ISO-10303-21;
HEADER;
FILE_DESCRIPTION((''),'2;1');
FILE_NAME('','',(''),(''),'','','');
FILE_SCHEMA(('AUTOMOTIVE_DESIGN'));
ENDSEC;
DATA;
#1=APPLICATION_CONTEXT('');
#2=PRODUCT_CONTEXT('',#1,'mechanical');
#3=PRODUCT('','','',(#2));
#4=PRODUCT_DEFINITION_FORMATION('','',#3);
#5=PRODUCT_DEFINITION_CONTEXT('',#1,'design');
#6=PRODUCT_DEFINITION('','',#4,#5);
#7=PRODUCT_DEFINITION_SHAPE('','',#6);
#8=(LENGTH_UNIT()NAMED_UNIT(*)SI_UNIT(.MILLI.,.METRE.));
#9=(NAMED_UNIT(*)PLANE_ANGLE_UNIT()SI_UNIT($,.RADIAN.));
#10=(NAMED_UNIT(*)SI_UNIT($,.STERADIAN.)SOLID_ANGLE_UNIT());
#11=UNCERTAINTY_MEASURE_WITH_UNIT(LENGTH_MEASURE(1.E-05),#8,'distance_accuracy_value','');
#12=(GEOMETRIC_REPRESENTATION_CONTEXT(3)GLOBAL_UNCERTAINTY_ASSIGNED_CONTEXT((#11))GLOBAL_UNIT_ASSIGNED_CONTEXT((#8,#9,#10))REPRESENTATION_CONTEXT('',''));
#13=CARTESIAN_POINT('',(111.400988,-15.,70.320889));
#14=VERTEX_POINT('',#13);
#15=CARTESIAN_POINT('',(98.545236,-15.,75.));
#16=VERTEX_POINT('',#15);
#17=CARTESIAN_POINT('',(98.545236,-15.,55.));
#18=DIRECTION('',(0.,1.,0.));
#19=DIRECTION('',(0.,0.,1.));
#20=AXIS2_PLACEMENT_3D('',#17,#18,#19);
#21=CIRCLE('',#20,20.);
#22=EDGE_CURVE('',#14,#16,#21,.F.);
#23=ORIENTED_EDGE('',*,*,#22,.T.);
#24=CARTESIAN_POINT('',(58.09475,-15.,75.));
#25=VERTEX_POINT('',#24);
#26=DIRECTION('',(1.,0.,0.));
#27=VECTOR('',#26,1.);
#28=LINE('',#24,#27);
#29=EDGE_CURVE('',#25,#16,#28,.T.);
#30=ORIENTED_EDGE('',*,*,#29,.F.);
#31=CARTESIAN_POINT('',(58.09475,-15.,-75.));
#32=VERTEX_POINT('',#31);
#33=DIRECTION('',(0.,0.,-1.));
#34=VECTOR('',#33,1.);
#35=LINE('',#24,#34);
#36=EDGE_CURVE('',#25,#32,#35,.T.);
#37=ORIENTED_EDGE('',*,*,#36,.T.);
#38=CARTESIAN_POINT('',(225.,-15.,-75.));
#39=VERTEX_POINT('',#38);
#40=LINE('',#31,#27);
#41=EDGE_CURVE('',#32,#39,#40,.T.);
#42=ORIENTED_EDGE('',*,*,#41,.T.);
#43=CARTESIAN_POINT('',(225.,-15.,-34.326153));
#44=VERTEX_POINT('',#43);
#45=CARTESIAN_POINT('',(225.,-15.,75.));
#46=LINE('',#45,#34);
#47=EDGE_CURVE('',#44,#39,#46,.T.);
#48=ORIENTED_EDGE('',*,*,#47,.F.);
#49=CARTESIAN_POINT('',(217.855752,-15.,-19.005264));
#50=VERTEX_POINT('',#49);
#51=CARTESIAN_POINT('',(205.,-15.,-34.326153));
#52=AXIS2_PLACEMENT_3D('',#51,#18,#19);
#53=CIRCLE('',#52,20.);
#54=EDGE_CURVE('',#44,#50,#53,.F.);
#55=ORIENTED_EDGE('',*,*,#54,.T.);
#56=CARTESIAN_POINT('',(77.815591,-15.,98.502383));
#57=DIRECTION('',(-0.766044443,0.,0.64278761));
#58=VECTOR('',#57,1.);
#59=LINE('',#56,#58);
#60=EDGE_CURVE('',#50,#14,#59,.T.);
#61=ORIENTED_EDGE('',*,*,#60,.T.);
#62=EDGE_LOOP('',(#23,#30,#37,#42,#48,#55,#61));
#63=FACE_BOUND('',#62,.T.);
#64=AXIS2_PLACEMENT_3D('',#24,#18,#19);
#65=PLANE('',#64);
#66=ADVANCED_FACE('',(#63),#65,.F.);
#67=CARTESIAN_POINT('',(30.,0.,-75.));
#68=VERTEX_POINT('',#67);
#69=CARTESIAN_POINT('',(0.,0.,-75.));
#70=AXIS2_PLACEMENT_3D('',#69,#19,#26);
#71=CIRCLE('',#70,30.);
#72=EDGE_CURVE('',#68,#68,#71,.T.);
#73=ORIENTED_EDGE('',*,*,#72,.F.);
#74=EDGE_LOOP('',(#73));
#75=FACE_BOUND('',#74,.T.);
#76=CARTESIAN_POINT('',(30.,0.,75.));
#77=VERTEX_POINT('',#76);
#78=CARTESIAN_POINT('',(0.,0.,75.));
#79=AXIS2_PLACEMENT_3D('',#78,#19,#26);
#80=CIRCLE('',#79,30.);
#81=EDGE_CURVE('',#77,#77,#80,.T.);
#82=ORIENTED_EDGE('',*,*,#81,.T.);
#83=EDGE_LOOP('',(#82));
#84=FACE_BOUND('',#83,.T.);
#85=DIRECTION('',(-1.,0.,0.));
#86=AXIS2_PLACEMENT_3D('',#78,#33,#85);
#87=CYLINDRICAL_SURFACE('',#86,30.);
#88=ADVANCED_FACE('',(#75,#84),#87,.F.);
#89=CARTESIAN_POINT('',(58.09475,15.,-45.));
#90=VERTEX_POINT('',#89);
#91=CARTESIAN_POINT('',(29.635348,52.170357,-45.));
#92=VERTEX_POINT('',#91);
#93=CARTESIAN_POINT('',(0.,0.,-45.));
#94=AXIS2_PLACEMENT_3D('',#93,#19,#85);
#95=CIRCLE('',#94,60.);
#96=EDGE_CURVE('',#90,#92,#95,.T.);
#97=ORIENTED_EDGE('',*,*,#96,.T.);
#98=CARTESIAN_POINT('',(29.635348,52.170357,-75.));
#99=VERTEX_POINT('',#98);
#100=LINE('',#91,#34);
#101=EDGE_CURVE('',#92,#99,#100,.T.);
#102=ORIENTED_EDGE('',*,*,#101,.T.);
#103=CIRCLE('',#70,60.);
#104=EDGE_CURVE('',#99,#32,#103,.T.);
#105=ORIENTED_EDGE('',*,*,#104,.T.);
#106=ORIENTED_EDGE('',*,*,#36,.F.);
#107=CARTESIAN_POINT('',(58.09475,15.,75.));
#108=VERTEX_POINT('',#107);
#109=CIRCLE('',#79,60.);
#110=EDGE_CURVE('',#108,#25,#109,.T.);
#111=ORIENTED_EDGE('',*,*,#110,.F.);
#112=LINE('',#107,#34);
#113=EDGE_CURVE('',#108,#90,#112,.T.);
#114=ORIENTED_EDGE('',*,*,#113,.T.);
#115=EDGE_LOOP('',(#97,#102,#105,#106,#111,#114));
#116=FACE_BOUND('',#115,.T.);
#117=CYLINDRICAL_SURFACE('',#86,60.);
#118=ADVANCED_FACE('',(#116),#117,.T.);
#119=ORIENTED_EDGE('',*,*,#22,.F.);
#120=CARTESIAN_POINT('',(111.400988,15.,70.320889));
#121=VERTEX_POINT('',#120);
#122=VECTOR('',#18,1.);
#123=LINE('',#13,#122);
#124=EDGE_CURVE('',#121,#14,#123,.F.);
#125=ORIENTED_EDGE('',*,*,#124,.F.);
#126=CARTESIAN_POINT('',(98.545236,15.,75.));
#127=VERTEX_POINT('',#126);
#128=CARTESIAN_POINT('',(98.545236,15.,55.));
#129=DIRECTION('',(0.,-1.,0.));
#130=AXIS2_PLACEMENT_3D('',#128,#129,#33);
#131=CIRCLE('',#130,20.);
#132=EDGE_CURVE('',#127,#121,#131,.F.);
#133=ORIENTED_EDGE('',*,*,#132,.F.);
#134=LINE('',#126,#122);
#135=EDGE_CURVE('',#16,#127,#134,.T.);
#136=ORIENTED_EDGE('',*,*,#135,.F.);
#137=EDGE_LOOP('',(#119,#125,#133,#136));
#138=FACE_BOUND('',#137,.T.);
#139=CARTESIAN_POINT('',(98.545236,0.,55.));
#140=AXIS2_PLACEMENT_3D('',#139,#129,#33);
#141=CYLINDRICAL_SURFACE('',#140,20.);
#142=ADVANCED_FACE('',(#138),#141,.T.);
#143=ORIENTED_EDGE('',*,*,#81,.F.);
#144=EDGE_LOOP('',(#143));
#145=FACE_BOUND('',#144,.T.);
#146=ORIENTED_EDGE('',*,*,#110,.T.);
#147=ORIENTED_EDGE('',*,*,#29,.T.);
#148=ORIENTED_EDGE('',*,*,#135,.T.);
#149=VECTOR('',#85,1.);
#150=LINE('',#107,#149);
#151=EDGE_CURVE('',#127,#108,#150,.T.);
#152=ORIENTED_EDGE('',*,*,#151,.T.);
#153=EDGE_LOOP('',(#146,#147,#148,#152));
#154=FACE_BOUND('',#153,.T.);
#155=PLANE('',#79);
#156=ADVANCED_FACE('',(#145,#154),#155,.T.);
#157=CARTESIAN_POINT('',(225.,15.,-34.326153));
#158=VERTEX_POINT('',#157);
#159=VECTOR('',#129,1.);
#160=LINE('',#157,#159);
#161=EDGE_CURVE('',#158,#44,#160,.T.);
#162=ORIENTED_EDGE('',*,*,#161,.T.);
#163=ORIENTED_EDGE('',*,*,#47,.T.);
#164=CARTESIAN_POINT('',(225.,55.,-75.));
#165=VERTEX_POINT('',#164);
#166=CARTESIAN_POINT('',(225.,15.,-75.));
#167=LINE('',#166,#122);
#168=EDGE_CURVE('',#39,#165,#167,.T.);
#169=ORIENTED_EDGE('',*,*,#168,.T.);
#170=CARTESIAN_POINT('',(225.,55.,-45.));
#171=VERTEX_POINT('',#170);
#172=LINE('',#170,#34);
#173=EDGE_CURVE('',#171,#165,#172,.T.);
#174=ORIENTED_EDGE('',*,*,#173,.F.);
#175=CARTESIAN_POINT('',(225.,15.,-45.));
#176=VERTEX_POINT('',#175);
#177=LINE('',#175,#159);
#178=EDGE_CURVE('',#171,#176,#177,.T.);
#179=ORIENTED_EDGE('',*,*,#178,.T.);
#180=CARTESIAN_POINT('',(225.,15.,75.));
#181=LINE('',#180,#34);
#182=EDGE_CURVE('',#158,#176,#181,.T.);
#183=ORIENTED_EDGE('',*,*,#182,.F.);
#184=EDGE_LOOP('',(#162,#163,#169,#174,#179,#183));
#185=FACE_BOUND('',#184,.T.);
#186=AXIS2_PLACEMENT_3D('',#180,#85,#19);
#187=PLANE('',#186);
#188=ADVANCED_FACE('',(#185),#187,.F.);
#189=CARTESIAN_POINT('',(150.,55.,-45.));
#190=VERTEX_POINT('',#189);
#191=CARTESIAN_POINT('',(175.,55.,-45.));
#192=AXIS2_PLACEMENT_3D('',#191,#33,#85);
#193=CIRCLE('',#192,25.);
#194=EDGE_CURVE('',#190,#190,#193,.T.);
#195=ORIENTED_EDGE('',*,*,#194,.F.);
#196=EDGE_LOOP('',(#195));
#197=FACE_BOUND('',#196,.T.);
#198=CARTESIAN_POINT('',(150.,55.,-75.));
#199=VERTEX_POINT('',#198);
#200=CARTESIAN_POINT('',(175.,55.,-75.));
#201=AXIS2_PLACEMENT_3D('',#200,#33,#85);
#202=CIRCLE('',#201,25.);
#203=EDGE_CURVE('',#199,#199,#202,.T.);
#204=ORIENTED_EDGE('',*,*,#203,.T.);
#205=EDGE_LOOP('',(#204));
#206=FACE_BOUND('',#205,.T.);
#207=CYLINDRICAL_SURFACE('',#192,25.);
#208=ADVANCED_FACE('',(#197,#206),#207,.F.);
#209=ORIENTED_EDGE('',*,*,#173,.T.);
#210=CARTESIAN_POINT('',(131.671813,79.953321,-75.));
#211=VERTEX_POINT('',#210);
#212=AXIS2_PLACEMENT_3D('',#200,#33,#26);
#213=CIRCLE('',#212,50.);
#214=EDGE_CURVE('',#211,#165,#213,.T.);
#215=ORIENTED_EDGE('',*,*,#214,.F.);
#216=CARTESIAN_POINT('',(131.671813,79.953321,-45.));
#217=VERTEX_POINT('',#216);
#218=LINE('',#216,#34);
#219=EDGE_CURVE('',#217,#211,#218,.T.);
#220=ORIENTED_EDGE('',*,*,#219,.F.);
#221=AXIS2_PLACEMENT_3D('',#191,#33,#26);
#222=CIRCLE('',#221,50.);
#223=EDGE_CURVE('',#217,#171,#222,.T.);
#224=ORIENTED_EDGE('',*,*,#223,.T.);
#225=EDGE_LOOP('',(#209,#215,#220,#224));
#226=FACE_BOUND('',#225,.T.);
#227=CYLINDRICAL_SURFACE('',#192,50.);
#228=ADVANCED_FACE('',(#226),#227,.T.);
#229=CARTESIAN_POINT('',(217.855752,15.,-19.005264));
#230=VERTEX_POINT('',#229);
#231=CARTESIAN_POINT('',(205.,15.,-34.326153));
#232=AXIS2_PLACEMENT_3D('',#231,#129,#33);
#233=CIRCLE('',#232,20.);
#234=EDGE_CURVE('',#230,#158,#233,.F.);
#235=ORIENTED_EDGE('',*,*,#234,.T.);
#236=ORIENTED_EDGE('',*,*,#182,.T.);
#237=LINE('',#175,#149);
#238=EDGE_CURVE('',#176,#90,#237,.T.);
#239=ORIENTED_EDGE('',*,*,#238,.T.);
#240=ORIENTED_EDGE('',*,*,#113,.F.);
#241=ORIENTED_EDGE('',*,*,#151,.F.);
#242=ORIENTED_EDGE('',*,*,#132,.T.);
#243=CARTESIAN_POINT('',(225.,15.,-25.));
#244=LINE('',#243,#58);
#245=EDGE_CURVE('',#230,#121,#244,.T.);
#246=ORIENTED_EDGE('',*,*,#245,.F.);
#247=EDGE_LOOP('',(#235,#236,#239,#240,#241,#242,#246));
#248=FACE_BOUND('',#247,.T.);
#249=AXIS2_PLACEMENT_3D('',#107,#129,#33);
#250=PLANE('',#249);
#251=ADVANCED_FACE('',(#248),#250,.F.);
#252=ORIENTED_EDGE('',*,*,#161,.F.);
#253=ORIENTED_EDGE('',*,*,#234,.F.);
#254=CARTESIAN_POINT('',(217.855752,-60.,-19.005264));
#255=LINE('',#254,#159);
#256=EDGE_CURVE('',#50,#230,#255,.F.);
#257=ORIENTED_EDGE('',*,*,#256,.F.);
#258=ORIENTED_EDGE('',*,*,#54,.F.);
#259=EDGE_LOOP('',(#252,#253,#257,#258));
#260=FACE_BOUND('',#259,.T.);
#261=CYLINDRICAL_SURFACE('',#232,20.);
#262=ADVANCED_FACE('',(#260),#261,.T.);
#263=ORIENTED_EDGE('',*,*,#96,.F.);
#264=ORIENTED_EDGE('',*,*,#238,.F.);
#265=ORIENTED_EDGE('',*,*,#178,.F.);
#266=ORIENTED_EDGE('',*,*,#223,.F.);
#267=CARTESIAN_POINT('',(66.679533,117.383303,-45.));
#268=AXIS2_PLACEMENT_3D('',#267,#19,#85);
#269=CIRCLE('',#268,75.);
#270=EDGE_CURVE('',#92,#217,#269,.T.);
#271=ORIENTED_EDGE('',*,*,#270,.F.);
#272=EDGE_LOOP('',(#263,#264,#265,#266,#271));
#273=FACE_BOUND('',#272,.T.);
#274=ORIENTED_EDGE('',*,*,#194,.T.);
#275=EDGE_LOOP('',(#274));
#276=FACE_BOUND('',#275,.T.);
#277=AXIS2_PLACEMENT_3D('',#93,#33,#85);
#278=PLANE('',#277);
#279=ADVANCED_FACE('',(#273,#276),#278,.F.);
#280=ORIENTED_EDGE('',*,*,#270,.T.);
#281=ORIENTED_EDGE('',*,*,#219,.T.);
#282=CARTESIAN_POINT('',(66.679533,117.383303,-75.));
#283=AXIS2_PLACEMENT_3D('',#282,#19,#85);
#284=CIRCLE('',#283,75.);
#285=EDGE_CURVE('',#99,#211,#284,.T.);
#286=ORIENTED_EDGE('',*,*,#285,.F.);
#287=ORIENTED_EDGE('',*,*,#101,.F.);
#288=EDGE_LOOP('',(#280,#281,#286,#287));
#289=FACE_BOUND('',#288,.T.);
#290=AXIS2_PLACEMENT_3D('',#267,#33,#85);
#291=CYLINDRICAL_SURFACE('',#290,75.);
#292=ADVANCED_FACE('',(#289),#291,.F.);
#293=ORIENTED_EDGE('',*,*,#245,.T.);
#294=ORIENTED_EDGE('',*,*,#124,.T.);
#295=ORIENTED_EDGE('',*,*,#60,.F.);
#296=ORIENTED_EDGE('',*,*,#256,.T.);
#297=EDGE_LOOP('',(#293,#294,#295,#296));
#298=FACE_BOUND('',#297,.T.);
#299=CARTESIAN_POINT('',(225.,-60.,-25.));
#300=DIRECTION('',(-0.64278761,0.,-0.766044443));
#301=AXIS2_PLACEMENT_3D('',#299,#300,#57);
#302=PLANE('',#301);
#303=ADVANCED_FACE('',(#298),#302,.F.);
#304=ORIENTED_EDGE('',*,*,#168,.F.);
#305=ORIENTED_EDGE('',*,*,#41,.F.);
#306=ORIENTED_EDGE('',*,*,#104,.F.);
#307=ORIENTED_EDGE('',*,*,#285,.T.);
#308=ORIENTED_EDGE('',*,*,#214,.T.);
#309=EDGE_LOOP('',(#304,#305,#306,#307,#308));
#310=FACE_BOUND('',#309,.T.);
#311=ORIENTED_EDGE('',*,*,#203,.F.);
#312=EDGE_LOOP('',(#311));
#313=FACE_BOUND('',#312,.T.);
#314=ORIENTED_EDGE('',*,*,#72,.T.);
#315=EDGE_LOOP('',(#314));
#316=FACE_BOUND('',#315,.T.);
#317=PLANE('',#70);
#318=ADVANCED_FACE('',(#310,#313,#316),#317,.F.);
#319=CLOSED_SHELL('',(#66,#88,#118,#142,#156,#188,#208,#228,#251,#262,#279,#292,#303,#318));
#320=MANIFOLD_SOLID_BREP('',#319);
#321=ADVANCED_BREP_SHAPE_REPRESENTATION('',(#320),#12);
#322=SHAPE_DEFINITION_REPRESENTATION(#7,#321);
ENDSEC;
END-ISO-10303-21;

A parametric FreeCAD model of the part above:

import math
import FreeCAD as App
import Part
import Sketcher
from FreeCAD import Vector
Q = App.Units.Quantity


def edges_at(feature, points):
    """Names of the edges that pass closest to the given points."""
    edges = feature.Shape.Edges
    near = lambda p: min(range(len(edges)), key=lambda i: edges[i].distToShape(Part.Vertex(*p))[0])
    return sorted({f"Edge{near(p) + 1}" for p in points})

doc = App.newDocument("Part")
params = doc.addObject("Spreadsheet::Sheet", "Params")
for row, (alias, value) in enumerate([
    ("sketch1_diameter", "60 mm"),
    ("sketch1_radius", "60 mm"),
    ("sketch1_height", "30 mm"),
    ("pad1_length", "150 mm"),
    ("sketch2_diameter", "50 mm"),
    ("sketch2_radius", "60 mm"),
    ("sketch2_radius2", "75 mm"),
    ("sketch2_radius3", "50 mm"),
    ("sketch2_height", "40 mm"),
    ("pad2_length", "30 mm"),
    ("sketch3_height", "100 mm"),
    ("fillet_radius", "20 mm"),
], start=1):
    params.set(f"A{row}", alias)
    params.set(f"B{row}", "=" + value)
    params.setAlias(f"B{row}", alias)

body = doc.addObject("PartDesign::Body", "Body")

# Sketch on XY plane
sketch1 = body.newObject("Sketcher::SketchObject", "Sketch")
sketch1.AttachmentSupport = (doc.getObject("XY_Plane"), [""])
sketch1.MapMode = "FlatFace"
sketch1.addGeometry(Part.LineSegment(Vector(225, 15, 0), Vector(58, 15, 0)), False)
sketch1.addGeometry(Part.ArcOfCircle(Part.Circle(Vector(0, 0, 0), Vector(0, 0, 1), 60), math.radians(14), math.radians(346)), False)
sketch1.addGeometry(Part.LineSegment(Vector(58, -15, 0), Vector(225, -15, 0)), False)
sketch1.addGeometry(Part.LineSegment(Vector(225, -15, 0), Vector(225, 15, 0)), False)
sketch1.addGeometry(Part.Circle(Vector(0, 0, 0), Vector(0, 0, 1), 30), False)
sketch1.addConstraint(Sketcher.Constraint("Coincident", 0, 2, 1, 1))
sketch1.addConstraint(Sketcher.Constraint("Coincident", 1, 2, 2, 1))
sketch1.addConstraint(Sketcher.Constraint("Coincident", 2, 2, 3, 1))
sketch1.addConstraint(Sketcher.Constraint("Coincident", 3, 2, 0, 1))
sketch1.addConstraint(Sketcher.Constraint("Horizontal", 0))
sketch1.addConstraint(Sketcher.Constraint("Horizontal", 2))
sketch1.addConstraint(Sketcher.Constraint("Vertical", 3))
sketch1.addConstraint(Sketcher.Constraint("Coincident", 1, 3, -1, 1))
sketch1.addConstraint(Sketcher.Constraint("Coincident", 4, 3, -1, 1))
sketch1.addConstraint(Sketcher.Constraint("Vertical", 0, 2, 1, 2))
sketch1.addConstraint(Sketcher.Constraint("Diameter", 4, Q("60 mm")))
sketch1.addConstraint(Sketcher.Constraint("Radius", 1, Q("60 mm")))
sketch1.addConstraint(Sketcher.Constraint("DistanceY", 3, 1, 3, 2, Q("30 mm")))
sketch1.addConstraint(Sketcher.Constraint("DistanceX", -1, 1, 2, 2, Q("225 mm")))
sketch1.setExpression("Constraints[10]", "Params.sketch1_diameter")
sketch1.setExpression("Constraints[11]", "Params.sketch1_radius")
sketch1.setExpression("Constraints[12]", "Params.sketch1_height")
pad1 = body.newObject("PartDesign::Pad", "Pad")
pad1.Profile = sketch1
pad1.setExpression("Length", "Params.pad1_length")
pad1.Midplane = True

# Sketch on XY plane
sketch2 = body.newObject("Sketcher::SketchObject", "Sketch001")
sketch2.AttachmentSupport = (doc.getObject("XY_Plane"), [""])
sketch2.MapMode = "FlatFace"
sketch2.AttachmentOffset = App.Placement(Vector(0, 0, -75), App.Rotation())
sketch2.addGeometry(Part.LineSegment(Vector(225, 55, 0), Vector(225, 15, 0)), False)
sketch2.addGeometry(Part.LineSegment(Vector(225, 15, 0), Vector(58, 15, 0)), False)
sketch2.addGeometry(Part.ArcOfCircle(Part.Circle(Vector(0, 0, 0), Vector(0, 0, 1), 60), math.radians(14), math.radians(60)), False)
sketch2.addGeometry(Part.ArcOfCircle(Part.Circle(Vector(67, 117, 0), Vector(0, 0, 1), 75), math.radians(-120), math.radians(-30)), False)
sketch2.addGeometry(Part.ArcOfCircle(Part.Circle(Vector(175, 55, 0), Vector(0, 0, 1), 50), math.radians(0), math.radians(150)), False)
sketch2.addGeometry(Part.Circle(Vector(175, 55, 0), Vector(0, 0, 1), 25), False)
sketch2.addConstraint(Sketcher.Constraint("Coincident", 0, 2, 1, 1))
sketch2.addConstraint(Sketcher.Constraint("Coincident", 1, 2, 2, 1))
sketch2.addConstraint(Sketcher.Constraint("Tangent", 2, 2, 3, 1))
sketch2.addConstraint(Sketcher.Constraint("Tangent", 3, 2, 4, 2))
sketch2.addConstraint(Sketcher.Constraint("Tangent", 4, 1, 0, 1))
sketch2.addConstraint(Sketcher.Constraint("Vertical", 0))
sketch2.addConstraint(Sketcher.Constraint("Horizontal", 1))
sketch2.addConstraint(Sketcher.Constraint("Coincident", 2, 3, -1, 1))
sketch2.addConstraint(Sketcher.Constraint("Coincident", 5, 3, 4, 3))
sketch2.addConstraint(Sketcher.Constraint("Diameter", 5, Q("50 mm")))
sketch2.addConstraint(Sketcher.Constraint("Radius", 2, Q("60 mm")))
sketch2.addConstraint(Sketcher.Constraint("Radius", 3, Q("75 mm")))
sketch2.addConstraint(Sketcher.Constraint("Radius", 4, Q("50 mm")))
sketch2.addConstraint(Sketcher.Constraint("DistanceY", 0, 2, 0, 1, Q("40 mm")))
sketch2.addConstraint(Sketcher.Constraint("DistanceX", -1, 1, 4, 3, Q("175 mm")))
sketch2.addConstraint(Sketcher.Constraint("DistanceY", -1, 1, 4, 3, Q("55 mm")))
sketch2.setExpression("Constraints[9]", "Params.sketch2_diameter")
sketch2.setExpression("Constraints[10]", "Params.sketch2_radius")
sketch2.setExpression("Constraints[11]", "Params.sketch2_radius2")
sketch2.setExpression("Constraints[12]", "Params.sketch2_radius3")
sketch2.setExpression("Constraints[13]", "Params.sketch2_height")
pad2 = body.newObject("PartDesign::Pad", "Pad001")
pad2.Profile = sketch2
pad2.setExpression("Length", "Params.pad2_length")

# Sketch on XZ plane
sketch3 = body.newObject("Sketcher::SketchObject", "Sketch002")
sketch3.AttachmentSupport = (doc.getObject("XZ_Plane"), [""])
sketch3.MapMode = "FlatFace"
sketch3.AttachmentOffset = App.Placement(Vector(0, 0, -15), App.Rotation())
sketch3.addGeometry(Part.LineSegment(Vector(225, -25, 0), Vector(106, 75, 0)), False)
sketch3.addGeometry(Part.LineSegment(Vector(106, 75, 0), Vector(225, 75, 0)), False)
sketch3.addGeometry(Part.LineSegment(Vector(225, 75, 0), Vector(225, -25, 0)), False)
sketch3.addConstraint(Sketcher.Constraint("Coincident", 0, 2, 1, 1))
sketch3.addConstraint(Sketcher.Constraint("Coincident", 1, 2, 2, 1))
sketch3.addConstraint(Sketcher.Constraint("Coincident", 2, 2, 0, 1))
sketch3.addConstraint(Sketcher.Constraint("Horizontal", 1))
sketch3.addConstraint(Sketcher.Constraint("Vertical", 2))
sketch3.addConstraint(Sketcher.Constraint("DistanceY", 2, 2, 2, 1, Q("100 mm")))
sketch3.addConstraint(Sketcher.Constraint("Angle", 0, Q("140 deg")))
sketch3.addConstraint(Sketcher.Constraint("DistanceY", -1, 1, 0, 2, Q("75 mm")))
sketch3.addConstraint(Sketcher.Constraint("DistanceX", -1, 1, 1, 2, Q("225 mm")))
sketch3.setExpression("Constraints[5]", "Params.sketch3_height")
pocket1 = body.newObject("PartDesign::Pocket", "Pocket")
pocket1.Profile = sketch3
pocket1.Type = "ThroughAll"
pocket1.Reversed = True
doc.recompute()

fillet = body.newObject("PartDesign::Fillet", "Fillet")
fillet.Base = (pocket1, edges_at(pocket1, [(225, 0, -25), (105.825, 0, 75)]))
fillet.setExpression("Radius", "Params.fillet_radius")

doc.recompute()
